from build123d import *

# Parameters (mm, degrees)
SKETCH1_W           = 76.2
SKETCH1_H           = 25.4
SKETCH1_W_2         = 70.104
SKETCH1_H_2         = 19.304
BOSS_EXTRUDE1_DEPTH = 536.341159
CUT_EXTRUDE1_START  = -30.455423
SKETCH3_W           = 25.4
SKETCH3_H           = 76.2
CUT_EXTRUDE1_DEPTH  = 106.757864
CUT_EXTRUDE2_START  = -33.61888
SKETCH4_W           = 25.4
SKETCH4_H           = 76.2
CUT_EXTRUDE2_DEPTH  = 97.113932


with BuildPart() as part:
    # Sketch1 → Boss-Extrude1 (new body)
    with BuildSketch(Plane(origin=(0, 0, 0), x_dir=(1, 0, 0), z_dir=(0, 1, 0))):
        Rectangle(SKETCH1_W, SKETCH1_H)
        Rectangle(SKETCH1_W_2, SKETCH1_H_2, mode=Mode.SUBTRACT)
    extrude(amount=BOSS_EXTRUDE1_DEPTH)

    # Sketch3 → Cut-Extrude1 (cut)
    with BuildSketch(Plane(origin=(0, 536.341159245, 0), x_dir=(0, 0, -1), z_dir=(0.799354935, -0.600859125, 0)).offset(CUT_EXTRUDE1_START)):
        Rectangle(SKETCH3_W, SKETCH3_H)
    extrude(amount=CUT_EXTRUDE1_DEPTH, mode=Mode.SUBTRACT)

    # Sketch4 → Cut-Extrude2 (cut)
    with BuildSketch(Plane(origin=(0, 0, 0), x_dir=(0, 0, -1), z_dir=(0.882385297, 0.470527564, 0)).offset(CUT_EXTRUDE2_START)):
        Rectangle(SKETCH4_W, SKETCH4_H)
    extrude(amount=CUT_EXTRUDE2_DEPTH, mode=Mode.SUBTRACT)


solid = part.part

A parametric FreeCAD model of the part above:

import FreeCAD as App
import Part
import Sketcher

V = App.Vector
Q = App.Units.Quantity


def add_polygon(sketch, points):
    """Adds a closed chain of lines whose ends are joined by coincident constraints."""
    first, n = sketch.GeometryCount, len(points)
    for a, b in zip(points, points[1:] + points[:1]):
        sketch.addGeometry(Part.LineSegment(App.Vector(*a, 0), App.Vector(*b, 0)), False)
    for i in range(n):
        sketch.addConstraint(Sketcher.Constraint("Coincident", first + i, 2, first + (i + 1) % n, 1))

doc = App.newDocument("Part")
body = doc.addObject("PartDesign::Body", "Body")

# Sketch on XZ plane
sketch1 = body.newObject("Sketcher::SketchObject", "Sketch")
sketch1.AttachmentSupport = (doc.getObject("XZ_Plane"), [""])
sketch1.MapMode = "FlatFace"
add_polygon(sketch1, [(-38, -13), (-38, 13), (38, 13), (38, -13)])  # lines 0-3
add_polygon(sketch1, [(35, 10), (-35, 10), (-35, -10), (35, -10)])  # lines 4-7
sketch1.addConstraint([
    Sketcher.Constraint("Vertical", 0),
    Sketcher.Constraint("Horizontal", 1),
    Sketcher.Constraint("Vertical", 2),
    Sketcher.Constraint("Horizontal", 3),
    Sketcher.Constraint("Horizontal", 4),
    Sketcher.Constraint("Vertical", 5),
    Sketcher.Constraint("Horizontal", 6),
    Sketcher.Constraint("Vertical", 7),
    Sketcher.Constraint("Symmetric", 0, 2, 2, 2, -1, 1),
    Sketcher.Constraint("Symmetric", 4, 2, 6, 2, -1, 1),
    Sketcher.Constraint("DistanceX", 1, 1, 1, 2, Q("3 in")),
    Sketcher.Constraint("DistanceY", 0, 1, 0, 2, Q("1 in")),
    Sketcher.Constraint("DistanceX", 4, 2, 4, 1, Q("2.76 in")),
    Sketcher.Constraint("DistanceY", 5, 2, 5, 1, Q("0.76 in")),
])
pad1 = body.newObject("PartDesign::Pad", "Pad")
pad1.Profile = sketch1
pad1.Length = 536.341159
pad1.Reversed = True

# Sketch on an angled plane
sketch2 = body.newObject("Sketcher::SketchObject", "Sketch001")
sketch2.Placement = App.Placement(V(-24.344693, 554.640578, 0), App.Rotation(V(0, 0, -1), V(0.600859125, 0.799354935, 0), V(0.799354935, -0.600859125, 0), "ZXY"))
add_polygon(sketch2, [(-13, 38), (-13, -38), (13, -38), (13, 38)])  # lines 0-3
sketch2.addConstraint([
    Sketcher.Constraint("Vertical", 0),
    Sketcher.Constraint("Horizontal", 1),
    Sketcher.Constraint("Vertical", 2),
    Sketcher.Constraint("Horizontal", 3),
    Sketcher.Constraint("Symmetric", 0, 2, 2, 2, -1, 1),
    Sketcher.Constraint("DistanceX", 1, 1, 1, 2, Q("1 in")),
    Sketcher.Constraint("DistanceY", 0, 2, 0, 1, Q("3 in")),
])
pocket1 = body.newObject("PartDesign::Pocket", "Pocket")
pocket1.Profile = sketch2
pocket1.Length = 106.757864
pocket1.Reversed = True

# Sketch on an angled plane
sketch3 = body.newObject("Sketcher::SketchObject", "Sketch002")
sketch3.Placement = App.Placement(V(-29.664805, -15.81861, 0), App.Rotation(V(0, 0, -1), V(-0.470527564, 0.882385297, 0), V(0.882385297, 0.470527564, 0), "ZXY"))
add_polygon(sketch3, [(-13, 38), (-13, -38), (13, -38), (13, 38)])  # lines 0-3
sketch3.addConstraint([
    Sketcher.Constraint("Vertical", 0),
    Sketcher.Constraint("Horizontal", 1),
    Sketcher.Constraint("Vertical", 2),
    Sketcher.Constraint("Horizontal", 3),
    Sketcher.Constraint("Symmetric", 0, 2, 2, 2, -1, 1),
    Sketcher.Constraint("DistanceX", 1, 1, 1, 2, Q("1 in")),
    Sketcher.Constraint("DistanceY", 0, 2, 0, 1, Q("3 in")),
])
pocket2 = body.newObject("PartDesign::Pocket", "Pocket001")
pocket2.Profile = sketch3
pocket2.Length = 97.113932
pocket2.Reversed = True

doc.recompute()
